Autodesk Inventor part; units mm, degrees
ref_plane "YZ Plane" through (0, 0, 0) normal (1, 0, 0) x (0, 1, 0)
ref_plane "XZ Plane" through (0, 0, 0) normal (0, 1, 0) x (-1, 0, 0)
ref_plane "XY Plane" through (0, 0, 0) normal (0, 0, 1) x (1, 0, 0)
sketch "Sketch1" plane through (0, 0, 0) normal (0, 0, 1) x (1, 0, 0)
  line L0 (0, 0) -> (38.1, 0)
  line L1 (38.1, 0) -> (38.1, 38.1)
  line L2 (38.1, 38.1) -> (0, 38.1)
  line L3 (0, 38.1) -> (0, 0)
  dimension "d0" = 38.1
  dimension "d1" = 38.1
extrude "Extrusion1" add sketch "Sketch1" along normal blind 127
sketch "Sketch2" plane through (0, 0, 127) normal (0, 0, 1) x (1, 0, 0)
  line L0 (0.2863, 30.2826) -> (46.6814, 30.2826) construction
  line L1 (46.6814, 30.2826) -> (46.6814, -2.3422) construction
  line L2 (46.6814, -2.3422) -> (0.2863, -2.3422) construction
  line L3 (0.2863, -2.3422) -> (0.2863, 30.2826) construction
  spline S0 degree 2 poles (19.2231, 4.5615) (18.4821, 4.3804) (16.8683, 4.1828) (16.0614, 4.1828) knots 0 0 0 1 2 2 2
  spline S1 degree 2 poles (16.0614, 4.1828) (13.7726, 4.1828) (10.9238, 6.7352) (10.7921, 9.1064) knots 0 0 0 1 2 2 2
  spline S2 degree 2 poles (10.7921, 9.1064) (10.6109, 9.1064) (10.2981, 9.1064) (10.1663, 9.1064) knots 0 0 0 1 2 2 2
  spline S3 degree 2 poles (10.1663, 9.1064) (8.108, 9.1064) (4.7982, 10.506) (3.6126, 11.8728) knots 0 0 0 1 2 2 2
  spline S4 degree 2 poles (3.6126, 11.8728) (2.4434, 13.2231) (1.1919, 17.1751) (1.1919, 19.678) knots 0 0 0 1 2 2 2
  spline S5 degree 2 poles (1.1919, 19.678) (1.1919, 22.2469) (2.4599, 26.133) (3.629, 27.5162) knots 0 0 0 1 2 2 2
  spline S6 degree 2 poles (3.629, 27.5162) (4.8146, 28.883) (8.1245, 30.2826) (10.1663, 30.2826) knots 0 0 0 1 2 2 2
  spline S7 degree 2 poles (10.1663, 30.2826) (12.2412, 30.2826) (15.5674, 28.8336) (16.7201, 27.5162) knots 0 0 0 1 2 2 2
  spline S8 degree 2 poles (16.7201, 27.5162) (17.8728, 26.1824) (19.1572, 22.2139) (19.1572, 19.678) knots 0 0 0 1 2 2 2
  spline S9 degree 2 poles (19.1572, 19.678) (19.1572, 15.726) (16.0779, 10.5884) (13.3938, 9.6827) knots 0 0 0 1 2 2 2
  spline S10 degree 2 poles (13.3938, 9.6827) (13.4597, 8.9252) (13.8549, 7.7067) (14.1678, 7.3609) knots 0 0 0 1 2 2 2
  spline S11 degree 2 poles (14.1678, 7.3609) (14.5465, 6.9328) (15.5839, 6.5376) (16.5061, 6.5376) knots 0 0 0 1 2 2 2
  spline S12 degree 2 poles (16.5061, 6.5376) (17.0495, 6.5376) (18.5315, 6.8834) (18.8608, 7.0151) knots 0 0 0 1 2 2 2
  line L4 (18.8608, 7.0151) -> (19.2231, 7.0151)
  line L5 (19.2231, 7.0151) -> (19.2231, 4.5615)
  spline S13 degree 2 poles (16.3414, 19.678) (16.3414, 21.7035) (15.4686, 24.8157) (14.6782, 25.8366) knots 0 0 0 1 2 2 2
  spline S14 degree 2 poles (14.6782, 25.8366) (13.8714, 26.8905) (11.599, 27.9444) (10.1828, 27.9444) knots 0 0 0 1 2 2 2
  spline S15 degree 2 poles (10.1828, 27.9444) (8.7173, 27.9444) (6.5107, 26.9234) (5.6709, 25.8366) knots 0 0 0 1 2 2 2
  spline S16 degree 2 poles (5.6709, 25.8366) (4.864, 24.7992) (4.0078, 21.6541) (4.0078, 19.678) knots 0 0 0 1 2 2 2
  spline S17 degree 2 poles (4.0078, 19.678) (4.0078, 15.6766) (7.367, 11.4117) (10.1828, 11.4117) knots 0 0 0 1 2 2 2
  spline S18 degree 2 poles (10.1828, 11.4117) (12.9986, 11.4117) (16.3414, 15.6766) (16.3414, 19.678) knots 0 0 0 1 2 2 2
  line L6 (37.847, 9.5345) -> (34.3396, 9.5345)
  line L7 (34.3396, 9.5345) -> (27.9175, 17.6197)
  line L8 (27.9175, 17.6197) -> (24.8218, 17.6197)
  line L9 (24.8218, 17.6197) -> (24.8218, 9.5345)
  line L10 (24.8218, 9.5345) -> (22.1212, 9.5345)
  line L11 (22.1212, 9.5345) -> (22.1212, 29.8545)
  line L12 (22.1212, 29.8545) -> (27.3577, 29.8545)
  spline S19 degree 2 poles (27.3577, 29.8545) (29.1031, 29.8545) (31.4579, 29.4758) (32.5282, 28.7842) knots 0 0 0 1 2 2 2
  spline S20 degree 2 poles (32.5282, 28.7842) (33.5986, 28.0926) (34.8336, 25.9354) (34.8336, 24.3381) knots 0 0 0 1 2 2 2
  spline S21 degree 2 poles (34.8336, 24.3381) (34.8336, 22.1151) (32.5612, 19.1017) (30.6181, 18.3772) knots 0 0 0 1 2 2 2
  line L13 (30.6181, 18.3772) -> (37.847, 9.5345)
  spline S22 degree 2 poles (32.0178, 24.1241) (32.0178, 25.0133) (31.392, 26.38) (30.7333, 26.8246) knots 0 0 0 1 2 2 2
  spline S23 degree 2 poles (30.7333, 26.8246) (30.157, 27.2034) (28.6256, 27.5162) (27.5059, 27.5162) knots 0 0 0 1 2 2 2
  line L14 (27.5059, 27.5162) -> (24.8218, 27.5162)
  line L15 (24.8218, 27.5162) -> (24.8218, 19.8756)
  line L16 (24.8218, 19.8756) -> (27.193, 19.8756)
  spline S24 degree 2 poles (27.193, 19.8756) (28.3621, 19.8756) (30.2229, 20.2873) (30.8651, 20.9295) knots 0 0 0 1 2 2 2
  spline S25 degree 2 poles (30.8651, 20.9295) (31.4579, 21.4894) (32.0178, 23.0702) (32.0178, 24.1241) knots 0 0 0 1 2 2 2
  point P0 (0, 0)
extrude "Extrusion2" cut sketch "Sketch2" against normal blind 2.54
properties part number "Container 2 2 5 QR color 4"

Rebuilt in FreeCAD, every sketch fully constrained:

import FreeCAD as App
import Part
import Sketcher

V = App.Vector
Q = App.Units.Quantity


def add_polygon(sketch, points):
    """Adds a closed chain of lines whose ends are joined by coincident constraints."""
    first, n = sketch.GeometryCount, len(points)
    for a, b in zip(points, points[1:] + points[:1]):
        sketch.addGeometry(Part.LineSegment(App.Vector(*a, 0), App.Vector(*b, 0)), False)
    for i in range(n):
        sketch.addConstraint(Sketcher.Constraint("Coincident", first + i, 2, first + (i + 1) % n, 1))

doc = App.newDocument("Part")
body = doc.addObject("PartDesign::Body", "Body")

sketch1 = doc.addObject("Sketcher::SketchObject", "Sketch")
body.addObject(sketch1)
sketch1.AttachmentSupport = (doc.XY_Plane, [""])
sketch1.MapMode = "FlatFace"
add_polygon(sketch1, [(0, 38), (0, 0), (38, 0), (38, 38)])
sketch1.addConstraint(Sketcher.Constraint("Vertical", 0))
sketch1.addConstraint(Sketcher.Constraint("Horizontal", 1))
sketch1.addConstraint(Sketcher.Constraint("Vertical", 2))
sketch1.addConstraint(Sketcher.Constraint("Horizontal", 3))
sketch1.addConstraint(Sketcher.Constraint("Coincident", 0, 2, -1, 1))
sketch1.addConstraint(Sketcher.Constraint("Equal", 3, 0))
sketch1.addConstraint(Sketcher.Constraint("DistanceX", 1, 1, 1, 2, Q("1.5 in")))
pad1 = doc.addObject("PartDesign::Pad", "Pad")
body.addObject(pad1)
pad1.Profile = sketch1
pad1.Length = Q("5 in")

sketch2 = doc.addObject("Sketcher::SketchObject", "Sketch001")
body.addObject(sketch2)
sketch2.AttachmentSupport = (doc.XY_Plane, [""])
sketch2.MapMode = "FlatFace"
sketch2.AttachmentOffset = App.Placement(V(0, 0, 5 * 25.4), App.Rotation())
sketch2.addGeometry(Part.BSplineCurve([V(19.2231, 4.5615, 0), V(18.4821, 4.3804, 0), V(16.8683, 4.1828, 0), V(16.0614, 4.1828, 0)], [3, 1, 3], [0, 1, 2], False, 2, [1, 1, 1, 1], False), False)
sketch2.addGeometry(Part.LineSegment(V(19.2231, 4.5615, 0), V(19.2231, 7.0151, 0)), False)
sketch2.addGeometry(Part.LineSegment(V(19.2231, 7.0151, 0), V(18.8608, 7.0151, 0)), False)
sketch2.addGeometry(Part.BSplineCurve([V(16.5061, 6.5376, 0), V(17.0495, 6.5376, 0), V(18.5315, 6.8834, 0), V(18.8608, 7.0151, 0)], [3, 1, 3], [0, 1, 2], False, 2, [1, 1, 1, 1], False), False)
sketch2.addGeometry(Part.BSplineCurve([V(14.1678, 7.3609, 0), V(14.5465, 6.9328, 0), V(15.5839, 6.5376, 0), V(16.5061, 6.5376, 0)], [3, 1, 3], [0, 1, 2], False, 2, [1, 1, 1, 1], False), False)
sketch2.addGeometry(Part.BSplineCurve([V(13.3938, 9.6827, 0), V(13.4597, 8.9252, 0), V(13.8549, 7.7067, 0), V(14.1678, 7.3609, 0)], [3, 1, 3], [0, 1, 2], False, 2, [1, 1, 1, 1], False), False)
sketch2.addGeometry(Part.BSplineCurve([V(19.1572, 19.678, 0), V(19.1572, 15.726, 0), V(16.0779, 10.5884, 0), V(13.3938, 9.6827, 0)], [3, 1, 3], [0, 1, 2], False, 2, [1, 1, 1, 1], False), False)
sketch2.addGeometry(Part.BSplineCurve([V(16.7201, 27.5162, 0), V(17.8728, 26.1824, 0), V(19.1572, 22.2139, 0), V(19.1572, 19.678, 0)], [3, 1, 3], [0, 1, 2], False, 2, [1, 1, 1, 1], False), False)
sketch2.addGeometry(Part.BSplineCurve([V(10.1663, 30.2826, 0), V(12.2412, 30.2826, 0), V(15.5674, 28.8336, 0), V(16.7201, 27.5162, 0)], [3, 1, 3], [0, 1, 2], False, 2, [1, 1, 1, 1], False), False)
sketch2.addGeometry(Part.BSplineCurve([V(3.629, 27.5162, 0), V(4.8146, 28.883, 0), V(8.1245, 30.2826, 0), V(10.1663, 30.2826, 0)], [3, 1, 3], [0, 1, 2], False, 2, [1, 1, 1, 1], False), False)
sketch2.addGeometry(Part.BSplineCurve([V(1.1919, 19.678, 0), V(1.1919, 22.2469, 0), V(2.4599, 26.133, 0), V(3.629, 27.5162, 0)], [3, 1, 3], [0, 1, 2], False, 2, [1, 1, 1, 1], False), False)
sketch2.addGeometry(Part.BSplineCurve([V(3.6126, 11.8728, 0), V(2.4434, 13.2231, 0), V(1.1919, 17.1751, 0), V(1.1919, 19.678, 0)], [3, 1, 3], [0, 1, 2], False, 2, [1, 1, 1, 1], False), False)
sketch2.addGeometry(Part.BSplineCurve([V(10.1663, 9.1064, 0), V(8.108, 9.1064, 0), V(4.7982, 10.506, 0), V(3.6126, 11.8728, 0)], [3, 1, 3], [0, 1, 2], False, 2, [1, 1, 1, 1], False), False)
sketch2.addGeometry(Part.BSplineCurve([V(10.7921, 9.1064, 0), V(10.6109, 9.1064, 0), V(10.2981, 9.1064, 0), V(10.1663, 9.1064, 0)], [3, 1, 3], [0, 1, 2], False, 2, [1, 1, 1, 1], False), False)
sketch2.addGeometry(Part.BSplineCurve([V(16.0614, 4.1828, 0), V(13.7726, 4.1828, 0), V(10.9238, 6.7352, 0), V(10.7921, 9.1064, 0)], [3, 1, 3], [0, 1, 2], False, 2, [1, 1, 1, 1], False), False)
sketch2.addGeometry(Part.BSplineCurve([V(16.3414, 19.678, 0), V(16.3414, 21.7035, 0), V(15.4686, 24.8157, 0), V(14.6782, 25.8366, 0)], [3, 1, 3], [0, 1, 2], False, 2, [1, 1, 1, 1], False), False)
sketch2.addGeometry(Part.BSplineCurve([V(10.1828, 11.4117, 0), V(12.9986, 11.4117, 0), V(16.3414, 15.6766, 0), V(16.3414, 19.678, 0)], [3, 1, 3], [0, 1, 2], False, 2, [1, 1, 1, 1], False), False)
sketch2.addGeometry(Part.BSplineCurve([V(4.0078, 19.678, 0), V(4.0078, 15.6766, 0), V(7.367, 11.4117, 0), V(10.1828, 11.4117, 0)], [3, 1, 3], [0, 1, 2], False, 2, [1, 1, 1, 1], False), False)
sketch2.addGeometry(Part.BSplineCurve([V(5.6709, 25.8366, 0), V(4.864, 24.7992, 0), V(4.0078, 21.6541, 0), V(4.0078, 19.678, 0)], [3, 1, 3], [0, 1, 2], False, 2, [1, 1, 1, 1], False), False)
sketch2.addGeometry(Part.BSplineCurve([V(10.1828, 27.9444, 0), V(8.7173, 27.9444, 0), V(6.5107, 26.9234, 0), V(5.6709, 25.8366, 0)], [3, 1, 3], [0, 1, 2], False, 2, [1, 1, 1, 1], False), False)
sketch2.addGeometry(Part.BSplineCurve([V(14.6782, 25.8366, 0), V(13.8714, 26.8905, 0), V(11.599, 27.9444, 0), V(10.1828, 27.9444, 0)], [3, 1, 3], [0, 1, 2], False, 2, [1, 1, 1, 1], False), False)
sketch2.addGeometry(Part.LineSegment(V(34.3396, 9.5345, 0), V(37.847, 9.5345, 0)), False)
sketch2.addGeometry(Part.LineSegment(V(37.847, 9.5345, 0), V(30.6181, 18.3772, 0)), False)
sketch2.addGeometry(Part.BSplineCurve([V(34.8336, 24.3381, 0), V(34.8336, 22.1151, 0), V(32.5612, 19.1017, 0), V(30.6181, 18.3772, 0)], [3, 1, 3], [0, 1, 2], False, 2, [1, 1, 1, 1], False), False)
sketch2.addGeometry(Part.BSplineCurve([V(32.5282, 28.7842, 0), V(33.5986, 28.0926, 0), V(34.8336, 25.9354, 0), V(34.8336, 24.3381, 0)], [3, 1, 3], [0, 1, 2], False, 2, [1, 1, 1, 1], False), False)
sketch2.addGeometry(Part.BSplineCurve([V(27.3577, 29.8545, 0), V(29.1031, 29.8545, 0), V(31.4579, 29.4758, 0), V(32.5282, 28.7842, 0)], [3, 1, 3], [0, 1, 2], False, 2, [1, 1, 1, 1], False), False)
sketch2.addGeometry(Part.LineSegment(V(27.3577, 29.8545, 0), V(22.1212, 29.8545, 0)), False)
sketch2.addGeometry(Part.LineSegment(V(22.1212, 29.8545, 0), V(22.1212, 9.5345, 0)), False)
sketch2.addGeometry(Part.LineSegment(V(22.1212, 9.5345, 0), V(24.8218, 9.5345, 0)), False)
sketch2.addGeometry(Part.LineSegment(V(24.8218, 9.5345, 0), V(24.8218, 17.6197, 0)), False)
sketch2.addGeometry(Part.LineSegment(V(24.8218, 17.6197, 0), V(27.9175, 17.6197, 0)), False)
sketch2.addGeometry(Part.LineSegment(V(27.9175, 17.6197, 0), V(34.3396, 9.5345, 0)), False)
sketch2.addGeometry(Part.BSplineCurve([V(32.0178, 24.1241, 0), V(32.0178, 25.0133, 0), V(31.392, 26.38, 0), V(30.7333, 26.8246, 0)], [3, 1, 3], [0, 1, 2], False, 2, [1, 1, 1, 1], False), False)
sketch2.addGeometry(Part.BSplineCurve([V(30.8651, 20.9295, 0), V(31.4579, 21.4894, 0), V(32.0178, 23.0702, 0), V(32.0178, 24.1241, 0)], [3, 1, 3], [0, 1, 2], False, 2, [1, 1, 1, 1], False), False)
sketch2.addGeometry(Part.BSplineCurve([V(27.193, 19.8756, 0), V(28.3621, 19.8756, 0), V(30.2229, 20.2873, 0), V(30.8651, 20.9295, 0)], [3, 1, 3], [0, 1, 2], False, 2, [1, 1, 1, 1], False), False)
sketch2.addGeometry(Part.LineSegment(V(27.193, 19.8756, 0), V(24.8218, 19.8756, 0)), False)
sketch2.addGeometry(Part.LineSegment(V(24.8218, 19.8756, 0), V(24.8218, 27.5162, 0)), False)
sketch2.addGeometry(Part.LineSegment(V(24.8218, 27.5162, 0), V(27.5059, 27.5162, 0)), False)
sketch2.addGeometry(Part.BSplineCurve([V(30.7333, 26.8246, 0), V(30.157, 27.2034, 0), V(28.6256, 27.5162, 0), V(27.5059, 27.5162, 0)], [3, 1, 3], [0, 1, 2], False, 2, [1, 1, 1, 1], False), False)
sketch2.addConstraint(Sketcher.Constraint("Block", 0))
sketch2.addConstraint(Sketcher.Constraint("Block", 3))
sketch2.addConstraint(Sketcher.Constraint("Block", 4))
sketch2.addConstraint(Sketcher.Constraint("Block", 5))
sketch2.addConstraint(Sketcher.Constraint("Block", 6))
sketch2.addConstraint(Sketcher.Constraint("Block", 7))
sketch2.addConstraint(Sketcher.Constraint("Block", 8))
sketch2.addConstraint(Sketcher.Constraint("Block", 9))
sketch2.addConstraint(Sketcher.Constraint("Block", 10))
sketch2.addConstraint(Sketcher.Constraint("Block", 11))
sketch2.addConstraint(Sketcher.Constraint("Block", 12))
sketch2.addConstraint(Sketcher.Constraint("Block", 13))
sketch2.addConstraint(Sketcher.Constraint("Block", 14))
sketch2.addConstraint(Sketcher.Constraint("Block", 15))
sketch2.addConstraint(Sketcher.Constraint("Block", 16))
sketch2.addConstraint(Sketcher.Constraint("Block", 17))
sketch2.addConstraint(Sketcher.Constraint("Block", 18))
sketch2.addConstraint(Sketcher.Constraint("Block", 19))
sketch2.addConstraint(Sketcher.Constraint("Block", 20))
sketch2.addConstraint(Sketcher.Constraint("Block", 23))
sketch2.addConstraint(Sketcher.Constraint("Block", 24))
sketch2.addConstraint(Sketcher.Constraint("Block", 25))
sketch2.addConstraint(Sketcher.Constraint("Block", 32))
sketch2.addConstraint(Sketcher.Constraint("Block", 33))
sketch2.addConstraint(Sketcher.Constraint("Block", 34))
sketch2.addConstraint(Sketcher.Constraint("Block", 38))
sketch2.addConstraint(Sketcher.Constraint("Coincident", 0, 1, 1, 1))
sketch2.addConstraint(Sketcher.Constraint("Coincident", 1, 2, 2, 1))
sketch2.addConstraint(Sketcher.Constraint("Coincident", 2, 2, 3, 2))
sketch2.addConstraint(Sketcher.Constraint("Coincident", 21, 2, 22, 1))
sketch2.addConstraint(Sketcher.Constraint("Coincident", 22, 2, 23, 2))
sketch2.addConstraint(Sketcher.Constraint("Coincident", 25, 1, 26, 1))
sketch2.addConstraint(Sketcher.Constraint("Coincident", 26, 2, 27, 1))
sketch2.addConstraint(Sketcher.Constraint("Coincident", 27, 2, 28, 1))
sketch2.addConstraint(Sketcher.Constraint("Coincident", 28, 2, 29, 1))
sketch2.addConstraint(Sketcher.Constraint("Coincident", 29, 2, 30, 1))
sketch2.addConstraint(Sketcher.Constraint("Coincident", 30, 2, 31, 1))
sketch2.addConstraint(Sketcher.Constraint("Coincident", 31, 2, 21, 1))
sketch2.addConstraint(Sketcher.Constraint("Coincident", 34, 1, 35, 1))
sketch2.addConstraint(Sketcher.Constraint("Coincident", 35, 2, 36, 1))
sketch2.addConstraint(Sketcher.Constraint("Coincident", 36, 2, 37, 1))
sketch2.addConstraint(Sketcher.Constraint("Coincident", 37, 2, 38, 2))
sketch2.addConstraint(Sketcher.Constraint("Vertical", 1))
sketch2.addConstraint(Sketcher.Constraint("Horizontal", 2))
sketch2.addConstraint(Sketcher.Constraint("Horizontal", 21))
sketch2.addConstraint(Sketcher.Constraint("Horizontal", 26))
sketch2.addConstraint(Sketcher.Constraint("Vertical", 27))
sketch2.addConstraint(Sketcher.Constraint("Horizontal", 28))
sketch2.addConstraint(Sketcher.Constraint("Vertical", 29))
sketch2.addConstraint(Sketcher.Constraint("Horizontal", 30))
sketch2.addConstraint(Sketcher.Constraint("Horizontal", 35))
sketch2.addConstraint(Sketcher.Constraint("Vertical", 36))
sketch2.addConstraint(Sketcher.Constraint("Horizontal", 37))
sketch2.addConstraint(Sketcher.Constraint("Horizontal", 21, 2, 27, 2))
sketch2.addConstraint(Sketcher.Constraint("Vertical", 29, 2, 35, 2))
sketch2.addConstraint(Sketcher.Constraint("DistanceY", 27, 2, 27, 1, Q("0.8 in")))
sketch2.addConstraint(Sketcher.Constraint("Angle", 31, Q("-51.5398 deg")))
sketch2.addConstraint(Sketcher.Constraint("DistanceX", 26, 2, 37, 2, Q("0.212 in")))
sketch2.addConstraint(Sketcher.Constraint("Distance", 31, Q("0.4065 in")))
sketch2.addConstraint(Sketcher.Constraint("DistanceX", 21, 1, 21, 2, 3.5074))
sketch2.addConstraint(Sketcher.Constraint("DistanceX", 28, 1, 28, 2, 2.7006))
sketch2.addConstraint(Sketcher.Constraint("DistanceX", 30, 1, 30, 2, 3.0957))
pocket1 = doc.addObject("PartDesign::Pocket", "Pocket")
body.addObject(pocket1)
pocket1.Profile = sketch2
pocket1.Length = Q("0.1 in")

doc.recompute()
